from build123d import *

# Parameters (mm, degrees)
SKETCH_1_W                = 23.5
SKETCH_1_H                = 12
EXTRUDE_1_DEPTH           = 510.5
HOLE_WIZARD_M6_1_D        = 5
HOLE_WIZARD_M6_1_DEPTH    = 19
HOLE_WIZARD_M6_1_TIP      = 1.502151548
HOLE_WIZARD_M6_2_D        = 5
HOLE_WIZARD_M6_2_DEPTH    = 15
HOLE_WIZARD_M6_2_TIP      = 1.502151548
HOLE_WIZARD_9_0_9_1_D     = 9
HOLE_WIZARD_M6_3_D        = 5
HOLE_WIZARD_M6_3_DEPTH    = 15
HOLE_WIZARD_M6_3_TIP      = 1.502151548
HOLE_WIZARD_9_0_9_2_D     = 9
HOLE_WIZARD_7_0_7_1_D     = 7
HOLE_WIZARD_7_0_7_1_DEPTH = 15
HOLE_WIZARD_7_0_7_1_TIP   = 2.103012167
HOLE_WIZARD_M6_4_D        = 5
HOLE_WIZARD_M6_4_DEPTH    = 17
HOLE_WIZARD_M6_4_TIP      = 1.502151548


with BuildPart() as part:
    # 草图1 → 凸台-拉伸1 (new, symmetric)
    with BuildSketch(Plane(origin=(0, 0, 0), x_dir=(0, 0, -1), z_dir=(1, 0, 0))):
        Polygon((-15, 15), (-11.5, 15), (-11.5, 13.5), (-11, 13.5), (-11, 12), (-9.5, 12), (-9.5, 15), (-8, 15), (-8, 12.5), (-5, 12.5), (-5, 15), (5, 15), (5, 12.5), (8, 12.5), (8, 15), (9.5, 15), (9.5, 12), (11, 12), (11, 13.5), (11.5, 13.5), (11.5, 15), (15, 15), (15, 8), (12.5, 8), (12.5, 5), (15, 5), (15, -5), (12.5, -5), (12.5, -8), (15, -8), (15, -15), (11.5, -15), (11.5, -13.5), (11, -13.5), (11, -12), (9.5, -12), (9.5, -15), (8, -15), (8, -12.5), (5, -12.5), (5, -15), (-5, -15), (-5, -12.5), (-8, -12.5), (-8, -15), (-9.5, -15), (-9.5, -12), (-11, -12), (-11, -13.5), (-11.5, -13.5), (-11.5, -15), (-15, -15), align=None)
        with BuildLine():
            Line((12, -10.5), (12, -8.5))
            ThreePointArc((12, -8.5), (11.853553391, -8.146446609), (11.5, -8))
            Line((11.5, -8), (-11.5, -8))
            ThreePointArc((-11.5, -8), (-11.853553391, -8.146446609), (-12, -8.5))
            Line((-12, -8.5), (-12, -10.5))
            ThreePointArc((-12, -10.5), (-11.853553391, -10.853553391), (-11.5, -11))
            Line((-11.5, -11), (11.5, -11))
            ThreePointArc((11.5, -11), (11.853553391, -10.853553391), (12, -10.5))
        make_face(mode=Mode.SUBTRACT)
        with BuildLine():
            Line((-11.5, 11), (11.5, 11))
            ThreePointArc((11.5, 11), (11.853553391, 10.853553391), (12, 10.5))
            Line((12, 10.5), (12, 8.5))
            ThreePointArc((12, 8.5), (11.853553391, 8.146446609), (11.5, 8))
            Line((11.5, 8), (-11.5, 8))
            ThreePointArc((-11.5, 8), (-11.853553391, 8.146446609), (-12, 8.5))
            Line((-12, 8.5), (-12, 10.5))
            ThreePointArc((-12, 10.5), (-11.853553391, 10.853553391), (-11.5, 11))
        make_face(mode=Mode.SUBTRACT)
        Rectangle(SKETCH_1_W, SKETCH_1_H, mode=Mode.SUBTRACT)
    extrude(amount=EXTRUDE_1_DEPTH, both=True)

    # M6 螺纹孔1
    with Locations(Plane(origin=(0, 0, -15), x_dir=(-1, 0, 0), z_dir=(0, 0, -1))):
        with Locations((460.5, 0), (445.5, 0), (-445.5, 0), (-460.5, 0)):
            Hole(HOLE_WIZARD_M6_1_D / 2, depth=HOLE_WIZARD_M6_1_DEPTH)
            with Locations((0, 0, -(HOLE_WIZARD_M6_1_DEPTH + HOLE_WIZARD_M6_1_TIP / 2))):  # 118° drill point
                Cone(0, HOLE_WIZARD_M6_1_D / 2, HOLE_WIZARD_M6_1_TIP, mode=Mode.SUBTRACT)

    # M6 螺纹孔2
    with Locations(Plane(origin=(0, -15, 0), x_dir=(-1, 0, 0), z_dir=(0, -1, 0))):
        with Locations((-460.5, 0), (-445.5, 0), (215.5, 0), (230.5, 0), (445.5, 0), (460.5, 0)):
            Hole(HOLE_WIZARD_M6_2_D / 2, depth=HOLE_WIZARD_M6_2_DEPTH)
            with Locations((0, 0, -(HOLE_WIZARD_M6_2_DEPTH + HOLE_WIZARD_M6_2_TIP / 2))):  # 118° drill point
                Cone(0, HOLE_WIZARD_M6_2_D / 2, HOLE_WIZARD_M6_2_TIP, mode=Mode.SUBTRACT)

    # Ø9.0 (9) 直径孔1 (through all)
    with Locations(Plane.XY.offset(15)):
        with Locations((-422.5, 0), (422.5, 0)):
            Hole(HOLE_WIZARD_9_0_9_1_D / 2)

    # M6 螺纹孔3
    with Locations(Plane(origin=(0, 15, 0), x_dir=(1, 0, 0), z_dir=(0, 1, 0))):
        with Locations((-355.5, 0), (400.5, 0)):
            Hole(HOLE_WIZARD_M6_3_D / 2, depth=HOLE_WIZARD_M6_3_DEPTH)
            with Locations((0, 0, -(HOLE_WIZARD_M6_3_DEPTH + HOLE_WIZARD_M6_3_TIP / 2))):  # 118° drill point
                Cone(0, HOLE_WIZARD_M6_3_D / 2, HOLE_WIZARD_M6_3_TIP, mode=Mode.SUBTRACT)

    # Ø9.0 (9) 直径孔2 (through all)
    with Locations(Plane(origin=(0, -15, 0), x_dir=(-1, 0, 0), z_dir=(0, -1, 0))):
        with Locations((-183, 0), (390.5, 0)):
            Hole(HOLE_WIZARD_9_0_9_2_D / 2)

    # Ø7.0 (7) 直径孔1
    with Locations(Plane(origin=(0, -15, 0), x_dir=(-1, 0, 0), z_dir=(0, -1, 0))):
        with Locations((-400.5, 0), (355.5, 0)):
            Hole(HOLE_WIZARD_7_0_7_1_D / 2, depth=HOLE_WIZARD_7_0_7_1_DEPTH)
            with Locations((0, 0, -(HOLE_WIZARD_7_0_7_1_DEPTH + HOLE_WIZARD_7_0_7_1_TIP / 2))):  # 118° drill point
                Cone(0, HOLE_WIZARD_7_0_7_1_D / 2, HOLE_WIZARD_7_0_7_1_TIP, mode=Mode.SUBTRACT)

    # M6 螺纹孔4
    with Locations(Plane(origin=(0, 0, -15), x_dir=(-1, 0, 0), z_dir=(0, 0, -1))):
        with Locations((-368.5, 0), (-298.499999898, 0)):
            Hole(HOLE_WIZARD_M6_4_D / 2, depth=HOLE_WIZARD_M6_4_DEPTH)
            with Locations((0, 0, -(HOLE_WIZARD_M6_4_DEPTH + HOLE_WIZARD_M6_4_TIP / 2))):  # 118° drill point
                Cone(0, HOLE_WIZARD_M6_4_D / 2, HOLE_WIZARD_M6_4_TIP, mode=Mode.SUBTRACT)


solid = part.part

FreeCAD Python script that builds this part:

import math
import FreeCAD as App
import Part
import Sketcher

doc = App.newDocument("Part")
params = doc.addObject("Spreadsheet::Sheet", "Params")
for row, (alias, value) in enumerate([
    ("sketch1_radius", "0.5 mm"),
    ("sketch1_width", "30 mm"),
    ("sketch1_width2", "3 mm"),
    ("sketch1_width3", "7 mm"),
    ("sketch1_width4", "2 mm"),
    ("pad1_length", "1021 mm"),
    ("sketch2_diameter", "5 mm"),
    ("hole_diameter", "5 mm"),
    ("hole_depth", "19 mm"),
    ("sketch3_diameter", "5 mm"),
    ("hole2_diameter", "5 mm"),
    ("hole2_depth", "15 mm"),
    ("sketch4_diameter", "9 mm"),
    ("hole3_diameter", "9 mm"),
    ("sketch5_diameter", "5 mm"),
    ("hole4_diameter", "5 mm"),
    ("hole4_depth", "15 mm"),
    ("sketch6_diameter", "9 mm"),
    ("hole5_diameter", "9 mm"),
    ("sketch7_diameter", "7 mm"),
    ("hole6_diameter", "7 mm"),
    ("hole6_depth", "15 mm"),
    ("sketch8_diameter", "5 mm"),
    ("hole7_diameter", "5 mm"),
    ("hole7_depth", "17 mm"),
], start=1):
    params.set(f"A{row}", alias)
    params.set(f"B{row}", "=" + value)
    params.setAlias(f"B{row}", alias)

body = doc.addObject("PartDesign::Body", "Body")

# Sketch on YZ plane
sketch1 = body.newObject("Sketcher::SketchObject", "Sketch")
sketch1.AttachmentSupport = (doc.getObject("YZ_Plane"), [""])
sketch1.MapMode = "FlatFace"
sketch1.addGeometry([
    Part.LineSegment(App.Vector(15, 11.5, 0), App.Vector(15, 15, 0)),  # 0
    Part.LineSegment(App.Vector(15, 15, 0), App.Vector(-15, 15, 0)),  # 1
    Part.LineSegment(App.Vector(-15, 15, 0), App.Vector(-15, 11.5, 0)),  # 2
    Part.LineSegment(App.Vector(-15, 11.5, 0), App.Vector(-13.5, 11.5, 0)),  # 3
    Part.LineSegment(App.Vector(-13.5, 11.5, 0), App.Vector(-13.5, 11, 0)),  # 4
    Part.LineSegment(App.Vector(-13.5, 11, 0), App.Vector(-12, 11, 0)),  # 5
    Part.LineSegment(App.Vector(-12, 11, 0), App.Vector(-12, 9.5, 0)),  # 6
    Part.LineSegment(App.Vector(-12, 9.5, 0), App.Vector(-15, 9.5, 0)),  # 7
    Part.LineSegment(App.Vector(-15, 9.5, 0), App.Vector(-15, 8, 0)),  # 8
    Part.LineSegment(App.Vector(-15, 8, 0), App.Vector(-12.5, 8, 0)),  # 9
    Part.LineSegment(App.Vector(-12.5, 8, 0), App.Vector(-12.5, 5, 0)),  # 10
    Part.LineSegment(App.Vector(-12.5, 5, 0), App.Vector(-15, 5, 0)),  # 11
    Part.LineSegment(App.Vector(-15, 5, 0), App.Vector(-15, -5, 0)),  # 12
    Part.LineSegment(App.Vector(-15, -5, 0), App.Vector(-12.5, -5, 0)),  # 13
    Part.LineSegment(App.Vector(-12.5, -5, 0), App.Vector(-12.5, -8, 0)),  # 14
    Part.LineSegment(App.Vector(-12.5, -8, 0), App.Vector(-15, -8, 0)),  # 15
    Part.LineSegment(App.Vector(-15, -8, 0), App.Vector(-15, -9.5, 0)),  # 16
    Part.LineSegment(App.Vector(-15, -9.5, 0), App.Vector(-12, -9.5, 0)),  # 17
    Part.LineSegment(App.Vector(-12, -9.5, 0), App.Vector(-12, -11, 0)),  # 18
    Part.LineSegment(App.Vector(-12, -11, 0), App.Vector(-13.5, -11, 0)),  # 19
    Part.LineSegment(App.Vector(-13.5, -11, 0), App.Vector(-13.5, -11.5, 0)),  # 20
    Part.LineSegment(App.Vector(-13.5, -11.5, 0), App.Vector(-15, -11.5, 0)),  # 21
    Part.LineSegment(App.Vector(-15, -11.5, 0), App.Vector(-15, -15, 0)),  # 22
    Part.LineSegment(App.Vector(-15, -15, 0), App.Vector(-8, -15, 0)),  # 23
    Part.LineSegment(App.Vector(-8, -15, 0), App.Vector(-8, -12.5, 0)),  # 24
    Part.LineSegment(App.Vector(-8, -12.5, 0), App.Vector(-5, -12.5, 0)),  # 25
    Part.LineSegment(App.Vector(-5, -12.5, 0), App.Vector(-5, -15, 0)),  # 26
    Part.LineSegment(App.Vector(-5, -15, 0), App.Vector(5, -15, 0)),  # 27
    Part.LineSegment(App.Vector(5, -15, 0), App.Vector(5, -12.5, 0)),  # 28
    Part.LineSegment(App.Vector(5, -12.5, 0), App.Vector(8, -12.5, 0)),  # 29
    Part.LineSegment(App.Vector(8, -12.5, 0), App.Vector(8, -15, 0)),  # 30
    Part.LineSegment(App.Vector(8, -15, 0), App.Vector(15, -15, 0)),  # 31
    Part.LineSegment(App.Vector(15, -15, 0), App.Vector(15, -11.5, 0)),  # 32
    Part.LineSegment(App.Vector(15, -11.5, 0), App.Vector(13.5, -11.5, 0)),  # 33
    Part.LineSegment(App.Vector(13.5, -11.5, 0), App.Vector(13.5, -11, 0)),  # 34
    Part.LineSegment(App.Vector(13.5, -11, 0), App.Vector(12, -11, 0)),  # 35
    Part.LineSegment(App.Vector(12, -11, 0), App.Vector(12, -9.5, 0)),  # 36
    Part.LineSegment(App.Vector(12, -9.5, 0), App.Vector(15, -9.5, 0)),  # 37
    Part.LineSegment(App.Vector(15, -9.5, 0), App.Vector(15, -8, 0)),  # 38
    Part.LineSegment(App.Vector(15, -8, 0), App.Vector(12.5, -8, 0)),  # 39
    Part.LineSegment(App.Vector(12.5, -8, 0), App.Vector(12.5, -5, 0)),  # 40
    Part.LineSegment(App.Vector(12.5, -5, 0), App.Vector(15, -5, 0)),  # 41
    Part.LineSegment(App.Vector(15, -5, 0), App.Vector(15, 5, 0)),  # 42
    Part.LineSegment(App.Vector(15, 5, 0), App.Vector(12.5, 5, 0)),  # 43
    Part.LineSegment(App.Vector(12.5, 5, 0), App.Vector(12.5, 8, 0)),  # 44
    Part.LineSegment(App.Vector(12.5, 8, 0), App.Vector(15, 8, 0)),  # 45
    Part.LineSegment(App.Vector(15, 8, 0), App.Vector(15, 9.5, 0)),  # 46
    Part.LineSegment(App.Vector(15, 9.5, 0), App.Vector(12, 9.5, 0)),  # 47
    Part.LineSegment(App.Vector(12, 9.5, 0), App.Vector(12, 11, 0)),  # 48
    Part.LineSegment(App.Vector(12, 11, 0), App.Vector(13.5, 11, 0)),  # 49
    Part.LineSegment(App.Vector(13.5, 11, 0), App.Vector(13.5, 11.5, 0)),  # 50
    Part.LineSegment(App.Vector(13.5, 11.5, 0), App.Vector(15, 11.5, 0)),  # 51
    Part.ArcOfCircle(Part.Circle(App.Vector(-10.5, -11.5, 0), App.Vector(0, 0, 1), 0.5), math.radians(180), math.radians(270)),  # 52
    Part.LineSegment(App.Vector(-11, -11.5, 0), App.Vector(-11, 11.5, 0)),  # 53
    Part.ArcOfCircle(Part.Circle(App.Vector(-10.5, 11.5, 0), App.Vector(0, 0, 1), 0.5), math.radians(90), math.radians(180)),  # 54
    Part.LineSegment(App.Vector(-10.5, 12, 0), App.Vector(-8.5, 12, 0)),  # 55
    Part.ArcOfCircle(Part.Circle(App.Vector(-8.5, 11.5, 0), App.Vector(0, 0, 1), 0.5), math.radians(0), math.radians(90)),  # 56
    Part.LineSegment(App.Vector(-8, 11.5, 0), App.Vector(-8, -11.5, 0)),  # 57
    Part.ArcOfCircle(Part.Circle(App.Vector(-8.5, -11.5, 0), App.Vector(0, 0, 1), 0.5), math.radians(-90), math.radians(0)),  # 58
    Part.LineSegment(App.Vector(-8.5, -12, 0), App.Vector(-10.5, -12, 0)),  # 59
    Part.LineSegment(App.Vector(-6, 11.75, 0), App.Vector(6, 11.75, 0)),  # 60
    Part.LineSegment(App.Vector(6, 11.75, 0), App.Vector(6, -11.75, 0)),  # 61
    Part.LineSegment(App.Vector(6, -11.75, 0), App.Vector(-6, -11.75, 0)),  # 62
    Part.LineSegment(App.Vector(-6, -11.75, 0), App.Vector(-6, 11.75, 0)),  # 63
    Part.LineSegment(App.Vector(11, 11.5, 0), App.Vector(11, -11.5, 0)),  # 64
    Part.ArcOfCircle(Part.Circle(App.Vector(10.5, -11.5, 0), App.Vector(0, 0, 1), 0.5), math.radians(-90), math.radians(0)),  # 65
    Part.LineSegment(App.Vector(10.5, -12, 0), App.Vector(8.5, -12, 0)),  # 66
    Part.ArcOfCircle(Part.Circle(App.Vector(8.5, -11.5, 0), App.Vector(0, 0, 1), 0.5), math.radians(180), math.radians(270)),  # 67
    Part.LineSegment(App.Vector(8, -11.5, 0), App.Vector(8, 11.5, 0)),  # 68
    Part.ArcOfCircle(Part.Circle(App.Vector(8.5, 11.5, 0), App.Vector(0, 0, 1), 0.5), math.radians(90), math.radians(180)),  # 69
    Part.LineSegment(App.Vector(8.5, 12, 0), App.Vector(10.5, 12, 0)),  # 70
    Part.ArcOfCircle(Part.Circle(App.Vector(10.5, 11.5, 0), App.Vector(0, 0, 1), 0.5), math.radians(0), math.radians(90)),  # 71
], False)
sketch1.addConstraint([
    Sketcher.Constraint("Coincident", 0, 2, 1, 1),
    Sketcher.Constraint("Coincident", 1, 2, 2, 1),
    Sketcher.Constraint("Coincident", 2, 2, 3, 1),
    Sketcher.Constraint("Coincident", 3, 2, 4, 1),
    Sketcher.Constraint("Coincident", 4, 2, 5, 1),
    Sketcher.Constraint("Coincident", 5, 2, 6, 1),
    Sketcher.Constraint("Coincident", 6, 2, 7, 1),
    Sketcher.Constraint("Coincident", 7, 2, 8, 1),
    Sketcher.Constraint("Coincident", 8, 2, 9, 1),
    Sketcher.Constraint("Coincident", 9, 2, 10, 1),
    Sketcher.Constraint("Coincident", 10, 2, 11, 1),
    Sketcher.Constraint("Coincident", 11, 2, 12, 1),
    Sketcher.Constraint("Coincident", 12, 2, 13, 1),
    Sketcher.Constraint("Coincident", 13, 2, 14, 1),
    Sketcher.Constraint("Coincident", 14, 2, 15, 1),
    Sketcher.Constraint("Coincident", 15, 2, 16, 1),
    Sketcher.Constraint("Coincident", 16, 2, 17, 1),
    Sketcher.Constraint("Coincident", 17, 2, 18, 1),
    Sketcher.Constraint("Coincident", 18, 2, 19, 1),
    Sketcher.Constraint("Coincident", 19, 2, 20, 1),
    Sketcher.Constraint("Coincident", 20, 2, 21, 1),
    Sketcher.Constraint("Coincident", 21, 2, 22, 1),
    Sketcher.Constraint("Coincident", 22, 2, 23, 1),
    Sketcher.Constraint("Coincident", 23, 2, 24, 1),
    Sketcher.Constraint("Coincident", 24, 2, 25, 1),
    Sketcher.Constraint("Coincident", 25, 2, 26, 1),
    Sketcher.Constraint("Coincident", 26, 2, 27, 1),
    Sketcher.Constraint("Coincident", 27, 2, 28, 1),
    Sketcher.Constraint("Coincident", 28, 2, 29, 1),
    Sketcher.Constraint("Coincident", 29, 2, 30, 1),
    Sketcher.Constraint("Coincident", 30, 2, 31, 1),
    Sketcher.Constraint("Coincident", 31, 2, 32, 1),
    Sketcher.Constraint("Coincident", 32, 2, 33, 1),
    Sketcher.Constraint("Coincident", 33, 2, 34, 1),
    Sketcher.Constraint("Coincident", 34, 2, 35, 1),
    Sketcher.Constraint("Coincident", 35, 2, 36, 1),
    Sketcher.Constraint("Coincident", 36, 2, 37, 1),
    Sketcher.Constraint("Coincident", 37, 2, 38, 1),
    Sketcher.Constraint("Coincident", 38, 2, 39, 1),
    Sketcher.Constraint("Coincident", 39, 2, 40, 1),
    Sketcher.Constraint("Coincident", 40, 2, 41, 1),
    Sketcher.Constraint("Coincident", 41, 2, 42, 1),
    Sketcher.Constraint("Coincident", 42, 2, 43, 1),
    Sketcher.Constraint("Coincident", 43, 2, 44, 1),
    Sketcher.Constraint("Coincident", 44, 2, 45, 1),
    Sketcher.Constraint("Coincident", 45, 2, 46, 1),
    Sketcher.Constraint("Coincident", 46, 2, 47, 1),
    Sketcher.Constraint("Coincident", 47, 2, 48, 1),
    Sketcher.Constraint("Coincident", 48, 2, 49, 1),
    Sketcher.Constraint("Coincident", 49, 2, 50, 1),
    Sketcher.Constraint("Coincident", 50, 2, 51, 1),
    Sketcher.Constraint("Coincident", 51, 2, 0, 1),
    Sketcher.Constraint("Tangent", 52, 1, 53, 1),
    Sketcher.Constraint("Tangent", 53, 2, 54, 2),
    Sketcher.Constraint("Tangent", 54, 1, 55, 1),
    Sketcher.Constraint("Tangent", 55, 2, 56, 2),
    Sketcher.Constraint("Tangent", 56, 1, 57, 1),
    Sketcher.Constraint("Tangent", 57, 2, 58, 2),
    Sketcher.Constraint("Tangent", 58, 1, 59, 1),
    Sketcher.Constraint("Tangent", 59, 2, 52, 2),
    Sketcher.Constraint("Coincident", 60, 2, 61, 1),
    Sketcher.Constraint("Coincident", 61, 2, 62, 1),
    Sketcher.Constraint("Coincident", 62, 2, 63, 1),
    Sketcher.Constraint("Coincident", 63, 2, 60, 1),
    Sketcher.Constraint("Tangent", 64, 2, 65, 2),
    Sketcher.Constraint("Tangent", 65, 1, 66, 1),
    Sketcher.Constraint("Tangent", 66, 2, 67, 2),
    Sketcher.Constraint("Tangent", 67, 1, 68, 1),
    Sketcher.Constraint("Tangent", 68, 2, 69, 2),
    Sketcher.Constraint("Tangent", 69, 1, 70, 1),
    Sketcher.Constraint("Tangent", 70, 2, 71, 2),
    Sketcher.Constraint("Tangent", 71, 1, 64, 1),
    Sketcher.Constraint("Vertical", 0),
    Sketcher.Constraint("Horizontal", 1),
    Sketcher.Constraint("Vertical", 2),
    Sketcher.Constraint("Horizontal", 3),
    Sketcher.Constraint("Vertical", 4),
    Sketcher.Constraint("Horizontal", 5),
    Sketcher.Constraint("Vertical", 6),
    Sketcher.Constraint("Horizontal", 7),
    Sketcher.Constraint("Vertical", 8),
    Sketcher.Constraint("Horizontal", 9),
    Sketcher.Constraint("Vertical", 10),
    Sketcher.Constraint("Horizontal", 11),
    Sketcher.Constraint("Vertical", 12),
    Sketcher.Constraint("Horizontal", 13),
    Sketcher.Constraint("Vertical", 14),
    Sketcher.Constraint("Horizontal", 15),
    Sketcher.Constraint("Vertical", 16),
    Sketcher.Constraint("Horizontal", 17),
    Sketcher.Constraint("Vertical", 18),
    Sketcher.Constraint("Horizontal", 19),
    Sketcher.Constraint("Vertical", 20),
    Sketcher.Constraint("Horizontal", 21),
    Sketcher.Constraint("Vertical", 22),
    Sketcher.Constraint("Horizontal", 23),
    Sketcher.Constraint("Vertical", 24),
    Sketcher.Constraint("Horizontal", 25),
    Sketcher.Constraint("Vertical", 26),
    Sketcher.Constraint("Horizontal", 27),
    Sketcher.Constraint("Vertical", 28),
    Sketcher.Constraint("Horizontal", 29),
    Sketcher.Constraint("Vertical", 30),
    Sketcher.Constraint("Horizontal", 31),
    Sketcher.Constraint("Vertical", 32),
    Sketcher.Constraint("Horizontal", 33),
    Sketcher.Constraint("Vertical", 34),
    Sketcher.Constraint("Horizontal", 35),
    Sketcher.Constraint("Vertical", 36),
    Sketcher.Constraint("Horizontal", 37),
    Sketcher.Constraint("Vertical", 38),
    Sketcher.Constraint("Horizontal", 39),
    Sketcher.Constraint("Vertical", 40),
    Sketcher.Constraint("Horizontal", 41),
    Sketcher.Constraint("Vertical", 42),
    Sketcher.Constraint("Horizontal", 43),
    Sketcher.Constraint("Vertical", 44),
    Sketcher.Constraint("Horizontal", 45),
    Sketcher.Constraint("Vertical", 46),
    Sketcher.Constraint("Horizontal", 47),
    Sketcher.Constraint("Vertical", 48),
    Sketcher.Constraint("Horizontal", 49),
    Sketcher.Constraint("Vertical", 50),
    Sketcher.Constraint("Horizontal", 51),
    Sketcher.Constraint("Vertical", 53),
    Sketcher.Constraint("Horizontal", 55),
    Sketcher.Constraint("Vertical", 57),
    Sketcher.Constraint("Horizontal", 59),
    Sketcher.Constraint("Horizontal", 60),
    Sketcher.Constraint("Vertical", 61),
    Sketcher.Constraint("Horizontal", 62),
    Sketcher.Constraint("Vertical", 63),
    Sketcher.Constraint("Vertical", 64),
    Sketcher.Constraint("Horizontal", 66),
    Sketcher.Constraint("Vertical", 68),
    Sketcher.Constraint("Horizontal", 70),
    Sketcher.Constraint("Equal", 52, 54),
    Sketcher.Constraint("Equal", 54, 56),
    Sketcher.Constraint("Equal", 56, 58),
    Sketcher.Constraint("Equal", 58, 65),
    Sketcher.Constraint("Equal", 65, 67),
    Sketcher.Constraint("Equal", 67, 69),
    Sketcher.Constraint("Equal", 69, 71),
    Sketcher.Constraint("Symmetric", 54, 3, 65, 3, -1, 1),
    Sketcher.Constraint("Symmetric", 58, 3, 69, 3, -1, 1),
    Sketcher.Constraint("Symmetric", 0, 2, 22, 2, -1, 1),
    Sketcher.Constraint("Symmetric", 1, 2, 31, 2, -1, 1),
    Sketcher.Constraint("Symmetric", 3, 2, 33, 2, -1, 1),
    Sketcher.Constraint("Symmetric", 5, 2, 35, 2, -1, 1),
    Sketcher.Constraint("Symmetric", 7, 2, 37, 2, -1, 1),
    Sketcher.Constraint("Symmetric", 9, 2, 39, 2, -1, 1),
    Sketcher.Constraint("Symmetric", 11, 2, 41, 2, -1, 1),
    Sketcher.Constraint("Symmetric", 13, 2, 43, 2, -1, 1),
    Sketcher.Constraint("Symmetric", 15, 2, 45, 2, -1, 1),
    Sketcher.Constraint("Symmetric", 17, 2, 47, 2, -1, 1),
    Sketcher.Constraint("Symmetric", 19, 2, 49, 2, -1, 1),
    Sketcher.Constraint("Symmetric", 60, 2, 62, 2, -1, 1),
    Sketcher.Constraint("Symmetric", 25, 2, 28, 2, -2),
    Sketcher.Constraint("Symmetric", 21, 2, 32, 2, -2),
    Sketcher.Constraint("Symmetric", 19, 2, 34, 2, -2),
    Sketcher.Constraint("Symmetric", 17, 2, 36, 2, -2),
    Sketcher.Constraint("Symmetric", 15, 2, 38, 2, -2),
    Sketcher.Constraint("Symmetric", 13, 2, 40, 2, -2),
    Sketcher.Constraint("Horizontal", 58, 3, 65, 3),
    Sketcher.Constraint("Horizontal", 71, 3, 2, 2),
    Sketcher.Constraint("Horizontal", 23, 2, 26, 2),
    Sketcher.Constraint("Horizontal", 3, 2, 50, 2),
    Sketcher.Constraint("Vertical", 2, 2, 7, 2),
    Sketcher.Constraint("Vertical", 8, 2, 11, 2),
    Sketcher.Constraint("Vertical", 24, 2, 56, 1),
    Sketcher.Constraint("Vertical", 30, 2, 67, 1),
    Sketcher.Constraint("Equal", 3, 5),
    Sketcher.Constraint("Equal", 17, 25),
    Sketcher.Constraint("Equal", 51, 6),
    Sketcher.Constraint("Equal", 6, 8),
    Sketcher.Constraint("Equal", 47, 10),
    Sketcher.Constraint("Equal", 27, 12),
    Sketcher.Constraint("Equal", 45, 24),
    Sketcher.Constraint("Radius", 52, 0.5),
    Sketcher.Constraint("DistanceX", 1, 2, 1, 1, 30.0),
    Sketcher.Constraint("DistanceX", 7, 2, 7, 1, 3.0),
    Sketcher.Constraint("DistanceX", 23, 1, 23, 2, 7.0),
    Sketcher.Constraint("DistanceX", 55, 1, 55, 2, 2.0),
    Sketcher.Constraint("DistanceX", 60, 1, 60, 2, 12.0),
    Sketcher.Constraint("DistanceY", 53, 1, 53, 2, 23.0),
    Sketcher.Constraint("DistanceX", 9, 1, 9, 2, 2.5),
    Sketcher.Constraint("DistanceY", 0, 1, 0, 2, 3.5),
    Sketcher.Constraint("DistanceY", 61, 2, 61, 1, 23.5),
])
sketch1.setExpression("Constraints[178]", "Params.sketch1_radius")
sketch1.setExpression("Constraints[179]", "Params.sketch1_width")
sketch1.setExpression("Constraints[180]", "Params.sketch1_width2")
sketch1.setExpression("Constraints[181]", "Params.sketch1_width3")
sketch1.setExpression("Constraints[182]", "Params.sketch1_width4")
pad1 = body.newObject("PartDesign::Pad", "Pad")
pad1.Profile = sketch1
pad1.setExpression("Length", "Params.pad1_length")
pad1.Midplane = True

# Sketch on XY plane
sketch2 = body.newObject("Sketcher::SketchObject", "Sketch001")
sketch2.AttachmentSupport = (doc.getObject("XY_Plane"), [""])
sketch2.MapMode = "FlatFace"
sketch2.AttachmentOffset = App.Placement(App.Vector(0, 0, -15), App.Rotation())
sketch2.addGeometry([
    Part.Circle(App.Vector(-460.5, 0, 0), App.Vector(0, 0, 1), 2.5),
    Part.Circle(App.Vector(-445.5, 0, 0), App.Vector(0, 0, 1), 2.5),
    Part.Circle(App.Vector(445.5, 0, 0), App.Vector(0, 0, 1), 2.5),
    Part.Circle(App.Vector(460.5, 0, 0), App.Vector(0, 0, 1), 2.5),
], False)
sketch2.addConstraint([
    Sketcher.Constraint("Equal", 0, 1),
    Sketcher.Constraint("Equal", 1, 2),
    Sketcher.Constraint("Equal", 2, 3),
    Sketcher.Constraint("Symmetric", 1, 3, 2, 3, -1, 1),
    Sketcher.Constraint("Symmetric", 0, 3, 3, 3, -1, 1),
    Sketcher.Constraint("PointOnObject", 0, 3, -1),
    Sketcher.Constraint("PointOnObject", 1, 3, -1),
    Sketcher.Constraint("Diameter", 0, 5.0),
    Sketcher.Constraint("DistanceX", 0, 3, 1, 3, 15.0),
    Sketcher.Constraint("DistanceX", 1, 3, 2, 3, 891.0),
])
sketch2.setExpression("Constraints[7]", "Params.sketch2_diameter")
doc.recompute()
hole = body.newObject("PartDesign::Hole", "Hole")
hole.Profile = sketch2
hole.ThreadType = "None"
hole.setExpression("Diameter", "Params.hole_diameter")
hole.DepthType = "Dimension"
hole.setExpression("Depth", "Params.hole_depth")
hole.DrillPoint = "Angled"
hole.DrillPointAngle = 118
hole.Reversed = True

# Sketch on XZ plane
sketch3 = body.newObject("Sketcher::SketchObject", "Sketch002")
sketch3.AttachmentSupport = (doc.getObject("XZ_Plane"), [""])
sketch3.MapMode = "FlatFace"
sketch3.AttachmentOffset = App.Placement(App.Vector(0, 0, 15), App.Rotation())
sketch3.addGeometry([
    Part.Circle(App.Vector(460.5, 0, 0), App.Vector(0, 0, 1), 2.5),  # 0
    Part.Circle(App.Vector(445.5, 0, 0), App.Vector(0, 0, 1), 2.5),  # 1
    Part.Circle(App.Vector(-215.5, 0, 0), App.Vector(0, 0, 1), 2.5),  # 2
    Part.Circle(App.Vector(-230.5, 0, 0), App.Vector(0, 0, 1), 2.5),  # 3
    Part.Circle(App.Vector(-445.5, 0, 0), App.Vector(0, 0, 1), 2.5),  # 4
    Part.Circle(App.Vector(-460.5, 0, 0), App.Vector(0, 0, 1), 2.5),  # 5
], False)
sketch3.addConstraint([
    Sketcher.Constraint("Equal", 0, 1),
    Sketcher.Constraint("Equal", 1, 2),
    Sketcher.Constraint("Equal", 2, 3),
    Sketcher.Constraint("Equal", 3, 4),
    Sketcher.Constraint("Equal", 4, 5),
    Sketcher.Constraint("Symmetric", 1, 3, 4, 3, -1, 1),
    Sketcher.Constraint("Symmetric", 0, 3, 5, 3, -1, 1),
    Sketcher.Constraint("PointOnObject", 0, 3, -1),
    Sketcher.Constraint("PointOnObject", 1, 3, -1),
    Sketcher.Constraint("PointOnObject", 2, 3, -1),
    Sketcher.Constraint("PointOnObject", 3, 3, -1),
    Sketcher.Constraint("Diameter", 0, 5.0),
    Sketcher.Constraint("DistanceX", 1, 3, 0, 3, 15.0),
    Sketcher.Constraint("DistanceX", 2, 3, 1, 3, 661.0),
    Sketcher.Constraint("DistanceX", 3, 3, 2, 3, 15.0),
    Sketcher.Constraint("DistanceX", 4, 3, 3, 3, 215.0),
])
sketch3.setExpression("Constraints[11]", "Params.sketch3_diameter")
doc.recompute()
hole2 = body.newObject("PartDesign::Hole", "Hole001")
hole2.Profile = sketch3
hole2.ThreadType = "None"
hole2.setExpression("Diameter", "Params.hole2_diameter")
hole2.DepthType = "Dimension"
hole2.setExpression("Depth", "Params.hole2_depth")
hole2.DrillPoint = "Angled"
hole2.DrillPointAngle = 118

# Sketch on XY plane
sketch4 = body.newObject("Sketcher::SketchObject", "Sketch003")
sketch4.AttachmentSupport = (doc.getObject("XY_Plane"), [""])
sketch4.MapMode = "FlatFace"
sketch4.AttachmentOffset = App.Placement(App.Vector(0, 0, 15), App.Rotation())
sketch4.addGeometry([
    Part.Circle(App.Vector(-422.5, 0, 0), App.Vector(0, 0, 1), 4.5),
    Part.Circle(App.Vector(422.5, 0, 0), App.Vector(0, 0, 1), 4.5),
], False)
sketch4.addConstraint([
    Sketcher.Constraint("Equal", 0, 1),
    Sketcher.Constraint("Symmetric", 0, 3, 1, 3, -1, 1),
    Sketcher.Constraint("PointOnObject", 0, 3, -1),
    Sketcher.Constraint("Diameter", 0, 9.0),
    Sketcher.Constraint("DistanceX", 0, 3, 1, 3, 845.0),
])
sketch4.setExpression("Constraints[3]", "Params.sketch4_diameter")
doc.recompute()
hole3 = body.newObject("PartDesign::Hole", "Hole002")
hole3.Profile = sketch4
hole3.ThreadType = "None"
hole3.setExpression("Diameter", "Params.hole3_diameter")
hole3.DepthType = "ThroughAll"

# Sketch on XZ plane
sketch5 = body.newObject("Sketcher::SketchObject", "Sketch004")
sketch5.AttachmentSupport = (doc.getObject("XZ_Plane"), [""])
sketch5.MapMode = "FlatFace"
sketch5.AttachmentOffset = App.Placement(App.Vector(0, 0, -15), App.Rotation())
sketch5.addGeometry([
    Part.Circle(App.Vector(-355.5, 0, 0), App.Vector(0, 0, 1), 2.5),
    Part.Circle(App.Vector(400.5, 0, 0), App.Vector(0, 0, 1), 2.5),
], False)
sketch5.addConstraint([
    Sketcher.Constraint("Equal", 0, 1),
    Sketcher.Constraint("PointOnObject", 0, 3, -1),
    Sketcher.Constraint("PointOnObject", 1, 3, -1),
    Sketcher.Constraint("Diameter", 0, 5.0),
    Sketcher.Constraint("DistanceX", 0, 3, 1, 3, 756.0),
    Sketcher.Constraint("DistanceX", 0, 3, -1, 1, 355.5),
])
sketch5.setExpression("Constraints[3]", "Params.sketch5_diameter")
doc.recompute()
hole4 = body.newObject("PartDesign::Hole", "Hole003")
hole4.Profile = sketch5
hole4.ThreadType = "None"
hole4.setExpression("Diameter", "Params.hole4_diameter")
hole4.DepthType = "Dimension"
hole4.setExpression("Depth", "Params.hole4_depth")
hole4.DrillPoint = "Angled"
hole4.DrillPointAngle = 118
hole4.Reversed = True

# Sketch on XZ plane
sketch6 = body.newObject("Sketcher::SketchObject", "Sketch005")
sketch6.AttachmentSupport = (doc.getObject("XZ_Plane"), [""])
sketch6.MapMode = "FlatFace"
sketch6.AttachmentOffset = App.Placement(App.Vector(0, 0, 15), App.Rotation())
sketch6.addGeometry([
    Part.Circle(App.Vector(183, 0, 0), App.Vector(0, 0, 1), 4.5),
    Part.Circle(App.Vector(-390.5, 0, 0), App.Vector(0, 0, 1), 4.5),
], False)
sketch6.addConstraint([
    Sketcher.Constraint("Equal", 0, 1),
    Sketcher.Constraint("PointOnObject", 0, 3, -1),
    Sketcher.Constraint("PointOnObject", 1, 3, -1),
    Sketcher.Constraint("Diameter", 0, 9.0),
    Sketcher.Constraint("DistanceX", -1, 1, 0, 3, 183.0),
    Sketcher.Constraint("DistanceX", 1, 3, -1, 1, 390.5),
])
sketch6.setExpression("Constraints[3]", "Params.sketch6_diameter")
doc.recompute()
hole5 = body.newObject("PartDesign::Hole", "Hole004")
hole5.Profile = sketch6
hole5.ThreadType = "None"
hole5.setExpression("Diameter", "Params.hole5_diameter")
hole5.DepthType = "ThroughAll"

# Sketch on XZ plane
sketch7 = body.newObject("Sketcher::SketchObject", "Sketch006")
sketch7.AttachmentSupport = (doc.getObject("XZ_Plane"), [""])
sketch7.MapMode = "FlatFace"
sketch7.AttachmentOffset = App.Placement(App.Vector(0, 0, 15), App.Rotation())
sketch7.addGeometry([
    Part.Circle(App.Vector(400.5, 0, 0), App.Vector(0, 0, 1), 3.5),
    Part.Circle(App.Vector(-355.5, 0, 0), App.Vector(0, 0, 1), 3.5),
], False)
sketch7.addConstraint([
    Sketcher.Constraint("Equal", 0, 1),
    Sketcher.Constraint("PointOnObject", 0, 3, -1),
    Sketcher.Constraint("PointOnObject", 1, 3, -1),
    Sketcher.Constraint("Diameter", 0, 7.0),
    Sketcher.Constraint("DistanceX", 1, 3, 0, 3, 756.0),
    Sketcher.Constraint("DistanceX", -1, 1, 0, 3, 400.5),
])
sketch7.setExpression("Constraints[3]", "Params.sketch7_diameter")
doc.recompute()
hole6 = body.newObject("PartDesign::Hole", "Hole005")
hole6.Profile = sketch7
hole6.ThreadType = "None"
hole6.setExpression("Diameter", "Params.hole6_diameter")
hole6.DepthType = "Dimension"
hole6.setExpression("Depth", "Params.hole6_depth")
hole6.DrillPoint = "Angled"
hole6.DrillPointAngle = 118

# Sketch on XY plane
sketch8 = body.newObject("Sketcher::SketchObject", "Sketch007")
sketch8.AttachmentSupport = (doc.getObject("XY_Plane"), [""])
sketch8.MapMode = "FlatFace"
sketch8.AttachmentOffset = App.Placement(App.Vector(0, 0, -15), App.Rotation())
sketch8.addGeometry([
    Part.Circle(App.Vector(368.5, 0, 0), App.Vector(0, 0, 1), 2.5),
    Part.Circle(App.Vector(298.5, 0, 0), App.Vector(0, 0, 1), 2.5),
], False)
sketch8.addConstraint([
    Sketcher.Constraint("Equal", 0, 1),
    Sketcher.Constraint("PointOnObject", 0, 3, -1),
    Sketcher.Constraint("PointOnObject", 1, 3, -1),
    Sketcher.Constraint("Diameter", 0, 5.0),
    Sketcher.Constraint("DistanceX", 1, 3, 0, 3, 70.0),
    Sketcher.Constraint("DistanceX", -1, 1, 0, 3, 368.5),
])
sketch8.setExpression("Constraints[3]", "Params.sketch8_diameter")
doc.recompute()
hole7 = body.newObject("PartDesign::Hole", "Hole006")
hole7.Profile = sketch8
hole7.ThreadType = "None"
hole7.setExpression("Diameter", "Params.hole7_diameter")
hole7.DepthType = "Dimension"
hole7.setExpression("Depth", "Params.hole7_depth")
hole7.DrillPoint = "Angled"
hole7.DrillPointAngle = 118
hole7.Reversed = True

doc.recompute()
